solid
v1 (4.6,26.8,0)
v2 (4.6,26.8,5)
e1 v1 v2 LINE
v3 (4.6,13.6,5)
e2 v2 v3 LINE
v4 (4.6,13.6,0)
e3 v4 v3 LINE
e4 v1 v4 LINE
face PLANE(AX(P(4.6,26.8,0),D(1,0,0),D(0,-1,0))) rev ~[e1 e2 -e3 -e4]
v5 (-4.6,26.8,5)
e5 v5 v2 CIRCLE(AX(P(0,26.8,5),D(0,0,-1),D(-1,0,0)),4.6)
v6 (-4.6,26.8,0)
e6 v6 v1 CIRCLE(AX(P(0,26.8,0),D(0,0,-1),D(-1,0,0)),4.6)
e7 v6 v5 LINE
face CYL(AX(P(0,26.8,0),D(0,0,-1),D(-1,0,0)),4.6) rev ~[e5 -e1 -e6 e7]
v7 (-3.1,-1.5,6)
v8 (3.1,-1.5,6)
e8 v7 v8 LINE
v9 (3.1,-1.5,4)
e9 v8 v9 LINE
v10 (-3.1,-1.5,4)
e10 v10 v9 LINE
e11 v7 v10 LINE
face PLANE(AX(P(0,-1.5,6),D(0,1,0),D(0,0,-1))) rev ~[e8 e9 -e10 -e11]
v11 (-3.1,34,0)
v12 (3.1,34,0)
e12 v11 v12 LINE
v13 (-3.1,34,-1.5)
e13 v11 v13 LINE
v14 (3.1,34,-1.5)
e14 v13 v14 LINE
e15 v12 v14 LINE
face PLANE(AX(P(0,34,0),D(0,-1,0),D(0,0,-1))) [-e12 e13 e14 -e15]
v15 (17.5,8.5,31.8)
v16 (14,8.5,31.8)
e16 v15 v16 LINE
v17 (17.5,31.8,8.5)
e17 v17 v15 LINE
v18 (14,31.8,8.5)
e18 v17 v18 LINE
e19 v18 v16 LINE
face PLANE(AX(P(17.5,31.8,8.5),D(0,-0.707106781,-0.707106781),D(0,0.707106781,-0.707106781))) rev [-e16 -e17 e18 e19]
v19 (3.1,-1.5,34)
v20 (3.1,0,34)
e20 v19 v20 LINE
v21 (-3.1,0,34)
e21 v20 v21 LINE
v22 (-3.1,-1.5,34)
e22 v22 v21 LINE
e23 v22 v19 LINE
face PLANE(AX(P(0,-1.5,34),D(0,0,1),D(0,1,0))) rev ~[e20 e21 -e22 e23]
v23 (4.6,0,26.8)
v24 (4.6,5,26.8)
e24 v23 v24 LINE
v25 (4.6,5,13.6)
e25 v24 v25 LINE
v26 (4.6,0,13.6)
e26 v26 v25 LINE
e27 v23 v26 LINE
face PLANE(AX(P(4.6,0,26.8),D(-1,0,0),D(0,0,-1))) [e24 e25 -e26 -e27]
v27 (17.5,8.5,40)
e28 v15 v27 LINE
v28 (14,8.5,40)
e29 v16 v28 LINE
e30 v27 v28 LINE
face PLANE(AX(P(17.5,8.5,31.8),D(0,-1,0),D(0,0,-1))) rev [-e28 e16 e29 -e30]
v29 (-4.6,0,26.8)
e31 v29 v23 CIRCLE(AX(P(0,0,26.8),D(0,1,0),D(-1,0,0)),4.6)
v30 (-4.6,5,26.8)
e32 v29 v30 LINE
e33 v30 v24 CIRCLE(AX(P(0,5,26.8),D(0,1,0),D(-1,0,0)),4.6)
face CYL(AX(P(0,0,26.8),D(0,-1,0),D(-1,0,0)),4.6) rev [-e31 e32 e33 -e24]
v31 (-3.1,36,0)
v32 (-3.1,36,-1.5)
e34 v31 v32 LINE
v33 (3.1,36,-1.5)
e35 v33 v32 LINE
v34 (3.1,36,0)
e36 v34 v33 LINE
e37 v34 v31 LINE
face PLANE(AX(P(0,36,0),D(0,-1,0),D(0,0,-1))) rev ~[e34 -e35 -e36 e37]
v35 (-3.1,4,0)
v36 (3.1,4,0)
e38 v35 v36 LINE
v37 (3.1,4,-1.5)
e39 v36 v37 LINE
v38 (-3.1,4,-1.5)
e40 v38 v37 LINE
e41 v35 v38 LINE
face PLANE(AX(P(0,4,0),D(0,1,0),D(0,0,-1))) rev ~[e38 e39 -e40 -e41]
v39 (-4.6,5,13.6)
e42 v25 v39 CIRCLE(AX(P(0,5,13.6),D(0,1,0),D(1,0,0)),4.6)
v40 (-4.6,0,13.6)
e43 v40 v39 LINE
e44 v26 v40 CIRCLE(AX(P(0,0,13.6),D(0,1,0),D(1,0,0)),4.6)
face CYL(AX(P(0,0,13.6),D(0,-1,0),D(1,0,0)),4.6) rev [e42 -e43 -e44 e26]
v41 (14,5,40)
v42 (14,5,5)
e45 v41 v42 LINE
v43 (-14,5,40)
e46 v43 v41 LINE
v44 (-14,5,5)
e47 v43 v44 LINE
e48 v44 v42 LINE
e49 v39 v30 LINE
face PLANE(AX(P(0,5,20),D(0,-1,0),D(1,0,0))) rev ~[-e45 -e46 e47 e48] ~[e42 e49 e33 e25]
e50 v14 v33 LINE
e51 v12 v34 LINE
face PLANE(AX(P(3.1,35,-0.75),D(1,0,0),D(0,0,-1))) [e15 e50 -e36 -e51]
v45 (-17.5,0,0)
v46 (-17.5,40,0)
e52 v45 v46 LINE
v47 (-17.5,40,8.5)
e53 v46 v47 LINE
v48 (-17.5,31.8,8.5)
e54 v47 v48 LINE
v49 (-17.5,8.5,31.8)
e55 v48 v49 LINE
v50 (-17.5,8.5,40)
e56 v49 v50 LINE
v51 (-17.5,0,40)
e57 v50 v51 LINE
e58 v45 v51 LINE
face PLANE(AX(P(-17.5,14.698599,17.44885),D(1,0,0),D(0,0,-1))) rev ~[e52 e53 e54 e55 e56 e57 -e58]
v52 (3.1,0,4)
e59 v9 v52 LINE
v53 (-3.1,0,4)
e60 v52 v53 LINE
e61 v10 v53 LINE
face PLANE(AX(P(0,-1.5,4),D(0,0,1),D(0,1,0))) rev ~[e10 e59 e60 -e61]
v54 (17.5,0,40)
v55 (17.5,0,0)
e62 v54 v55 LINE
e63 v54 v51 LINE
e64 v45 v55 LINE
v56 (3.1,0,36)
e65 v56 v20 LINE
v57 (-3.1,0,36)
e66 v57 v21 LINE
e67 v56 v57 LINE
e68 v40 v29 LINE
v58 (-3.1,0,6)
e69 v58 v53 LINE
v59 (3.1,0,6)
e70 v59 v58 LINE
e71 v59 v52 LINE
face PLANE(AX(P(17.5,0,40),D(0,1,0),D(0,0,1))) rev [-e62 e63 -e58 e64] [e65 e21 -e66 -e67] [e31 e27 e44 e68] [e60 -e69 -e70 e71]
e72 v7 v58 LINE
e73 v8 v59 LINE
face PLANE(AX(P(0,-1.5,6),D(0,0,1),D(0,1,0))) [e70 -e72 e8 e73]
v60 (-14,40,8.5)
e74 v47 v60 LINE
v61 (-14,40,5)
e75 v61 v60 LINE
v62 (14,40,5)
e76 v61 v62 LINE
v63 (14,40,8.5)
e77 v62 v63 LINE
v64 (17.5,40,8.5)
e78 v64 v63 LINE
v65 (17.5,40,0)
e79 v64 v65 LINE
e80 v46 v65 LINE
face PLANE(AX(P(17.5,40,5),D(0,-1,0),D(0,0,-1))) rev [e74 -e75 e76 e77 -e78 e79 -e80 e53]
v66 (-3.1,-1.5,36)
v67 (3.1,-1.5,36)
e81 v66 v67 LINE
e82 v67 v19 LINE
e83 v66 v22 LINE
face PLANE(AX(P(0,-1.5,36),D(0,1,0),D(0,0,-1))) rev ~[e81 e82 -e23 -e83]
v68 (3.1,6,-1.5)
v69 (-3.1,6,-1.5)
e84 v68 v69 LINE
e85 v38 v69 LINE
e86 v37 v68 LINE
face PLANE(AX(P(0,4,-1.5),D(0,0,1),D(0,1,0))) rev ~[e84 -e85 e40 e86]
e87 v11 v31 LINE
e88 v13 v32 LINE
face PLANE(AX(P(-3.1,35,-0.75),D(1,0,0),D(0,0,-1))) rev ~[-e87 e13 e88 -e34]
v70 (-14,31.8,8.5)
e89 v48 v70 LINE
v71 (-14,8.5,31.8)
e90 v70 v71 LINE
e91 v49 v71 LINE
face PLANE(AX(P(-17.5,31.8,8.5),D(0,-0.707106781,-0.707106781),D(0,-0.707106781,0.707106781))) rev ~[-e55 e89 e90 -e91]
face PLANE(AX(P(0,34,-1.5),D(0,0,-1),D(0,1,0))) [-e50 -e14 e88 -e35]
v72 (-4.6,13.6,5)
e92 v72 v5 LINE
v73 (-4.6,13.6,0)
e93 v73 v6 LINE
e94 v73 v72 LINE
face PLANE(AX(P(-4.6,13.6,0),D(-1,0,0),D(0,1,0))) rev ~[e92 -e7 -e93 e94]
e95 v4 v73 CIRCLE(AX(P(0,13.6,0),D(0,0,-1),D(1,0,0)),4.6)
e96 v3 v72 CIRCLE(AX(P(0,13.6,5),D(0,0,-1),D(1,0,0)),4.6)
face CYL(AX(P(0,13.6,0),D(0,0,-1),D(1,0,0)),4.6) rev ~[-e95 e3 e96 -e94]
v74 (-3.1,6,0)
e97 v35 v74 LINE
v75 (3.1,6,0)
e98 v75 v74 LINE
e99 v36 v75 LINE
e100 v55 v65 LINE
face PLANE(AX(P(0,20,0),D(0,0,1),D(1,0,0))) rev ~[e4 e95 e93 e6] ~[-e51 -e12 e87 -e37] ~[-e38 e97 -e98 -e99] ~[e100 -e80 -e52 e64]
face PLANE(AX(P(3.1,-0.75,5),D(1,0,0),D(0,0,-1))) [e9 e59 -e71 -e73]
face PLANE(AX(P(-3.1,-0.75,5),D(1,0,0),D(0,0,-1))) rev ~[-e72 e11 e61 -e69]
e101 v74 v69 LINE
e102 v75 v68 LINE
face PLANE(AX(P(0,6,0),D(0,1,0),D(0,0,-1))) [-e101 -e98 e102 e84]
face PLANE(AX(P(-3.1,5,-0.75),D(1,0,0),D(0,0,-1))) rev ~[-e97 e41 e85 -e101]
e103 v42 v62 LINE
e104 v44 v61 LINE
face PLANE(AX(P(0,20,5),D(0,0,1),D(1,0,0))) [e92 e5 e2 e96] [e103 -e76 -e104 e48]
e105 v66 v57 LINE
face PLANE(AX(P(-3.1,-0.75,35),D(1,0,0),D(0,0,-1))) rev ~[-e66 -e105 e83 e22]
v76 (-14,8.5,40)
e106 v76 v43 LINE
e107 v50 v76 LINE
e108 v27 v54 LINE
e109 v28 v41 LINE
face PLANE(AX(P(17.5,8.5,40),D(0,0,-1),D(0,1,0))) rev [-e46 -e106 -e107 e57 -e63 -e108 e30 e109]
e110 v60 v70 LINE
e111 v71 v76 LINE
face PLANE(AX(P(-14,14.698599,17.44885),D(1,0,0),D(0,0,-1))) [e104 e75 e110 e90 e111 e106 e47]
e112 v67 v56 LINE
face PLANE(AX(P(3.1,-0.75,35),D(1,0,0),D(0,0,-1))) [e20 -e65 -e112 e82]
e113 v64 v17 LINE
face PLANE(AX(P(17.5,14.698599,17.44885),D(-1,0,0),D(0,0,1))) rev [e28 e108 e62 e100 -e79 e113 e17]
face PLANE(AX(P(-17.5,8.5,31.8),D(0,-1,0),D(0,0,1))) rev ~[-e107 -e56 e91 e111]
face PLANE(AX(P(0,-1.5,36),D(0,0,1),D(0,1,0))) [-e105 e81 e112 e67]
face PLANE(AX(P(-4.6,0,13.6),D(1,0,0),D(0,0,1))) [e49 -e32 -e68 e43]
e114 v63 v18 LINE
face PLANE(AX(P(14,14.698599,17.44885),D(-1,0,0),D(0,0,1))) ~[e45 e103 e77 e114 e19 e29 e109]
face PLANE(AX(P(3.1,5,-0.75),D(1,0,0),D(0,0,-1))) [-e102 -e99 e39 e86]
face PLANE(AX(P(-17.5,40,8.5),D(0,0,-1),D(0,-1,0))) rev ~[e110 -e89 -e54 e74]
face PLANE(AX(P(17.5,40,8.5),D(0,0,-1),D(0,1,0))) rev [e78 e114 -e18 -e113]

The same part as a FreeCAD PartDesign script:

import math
import FreeCAD as App
import Part
import Sketcher
Q = App.Units.Quantity

doc = App.newDocument("Part")
params = doc.addObject("Spreadsheet::Sheet", "Params")
for row, (alias, value) in enumerate([
    ("sketch1_radius", "4.6 mm"),
    ("sketch1_width", "35 mm"),
    ("sketch1_height", "40 mm"),
    ("sketch1_height2", "13.2 mm"),
    ("pad1_length", "5 mm"),
    ("sketch2_width", "40 mm"),
    ("sketch2_height", "35 mm"),
    ("sketch2_width2", "8.5 mm"),
    ("sketch2_width3", "8.2 mm"),
    ("pad2_length", "3.5 mm"),
    ("sketch3_radius", "4.6 mm"),
    ("sketch3_width", "35 mm"),
    ("sketch3_height", "40 mm"),
    ("sketch3_height2", "13.2 mm"),
    ("pad3_length", "5 mm"),
    ("sketch4_width", "2 mm"),
    ("sketch4_width2", "1.5 mm"),
    ("pad4_length", "6.2 mm"),
], start=1):
    params.set(f"A{row}", alias)
    params.set(f"B{row}", "=" + value)
    params.setAlias(f"B{row}", alias)

body = doc.addObject("PartDesign::Body", "Body")

sketch1 = body.newObject("Sketcher::SketchObject", "Sketch")
sketch1.AttachmentSupport = (doc.getObject("XY_Plane"), [""])
sketch1.MapMode = "FlatFace"
sketch1.addGeometry([
    Part.LineSegment(App.Vector(-17.5, 40, 0), App.Vector(-17.5, 0, 0)),
    Part.LineSegment(App.Vector(-17.5, 0, 0), App.Vector(17.5, 0, 0)),
    Part.LineSegment(App.Vector(17.5, 0, 0), App.Vector(17.5, 40, 0)),
    Part.LineSegment(App.Vector(17.5, 40, 0), App.Vector(-17.5, 40, 0)),
    Part.ArcOfCircle(Part.Circle(App.Vector(0, 26.8, 0), App.Vector(0, 0, 1), 4.6), math.radians(0), math.radians(180)),
    Part.LineSegment(App.Vector(4.6, 26.8, 0), App.Vector(4.6, 13.6, 0)),
    Part.ArcOfCircle(Part.Circle(App.Vector(0, 13.6, 0), App.Vector(0, 0, 1), 4.6), math.radians(180), math.radians(360)),
    Part.LineSegment(App.Vector(-4.6, 13.6, 0), App.Vector(-4.6, 26.8, 0)),
], False)
sketch1.addConstraint([
    Sketcher.Constraint("Coincident", 0, 2, 1, 1),
    Sketcher.Constraint("Coincident", 1, 2, 2, 1),
    Sketcher.Constraint("Coincident", 2, 2, 3, 1),
    Sketcher.Constraint("Coincident", 3, 2, 0, 1),
    Sketcher.Constraint("Tangent", 4, 1, 5, 1),
    Sketcher.Constraint("Tangent", 5, 2, 6, 2),
    Sketcher.Constraint("Tangent", 6, 1, 7, 1),
    Sketcher.Constraint("Tangent", 7, 2, 4, 2),
    Sketcher.Constraint("Vertical", 0),
    Sketcher.Constraint("Horizontal", 1),
    Sketcher.Constraint("Vertical", 2),
    Sketcher.Constraint("Horizontal", 3),
    Sketcher.Constraint("Vertical", 5),
    Sketcher.Constraint("Vertical", 7),
    Sketcher.Constraint("Symmetric", 0, 2, 1, 2, -1, 1),
    Sketcher.Constraint("PointOnObject", 4, 3, -2),
    Sketcher.Constraint("Radius", 4, 4.6),
    Sketcher.Constraint("DistanceX", 1, 1, 1, 2, 35.0),
    Sketcher.Constraint("DistanceY", 0, 2, 0, 1, 40.0),
    Sketcher.Constraint("DistanceY", 5, 2, 5, 1, 13.2),
    Sketcher.Constraint("DistanceY", -1, 1, 4, 3, 26.8),
])
sketch1.setExpression("Constraints[16]", "Params.sketch1_radius")
sketch1.setExpression("Constraints[17]", "Params.sketch1_width")
sketch1.setExpression("Constraints[18]", "Params.sketch1_height")
sketch1.setExpression("Constraints[19]", "Params.sketch1_height2")
pad1 = body.newObject("PartDesign::Pad", "Pad")
pad1.Profile = sketch1
pad1.setExpression("Length", "Params.pad1_length")

sketch2 = body.newObject("Sketcher::SketchObject", "Sketch001")
sketch2.AttachmentSupport = (doc.getObject("YZ_Plane"), [""])
sketch2.MapMode = "FlatFace"
sketch2.AttachmentOffset = App.Placement(App.Vector(0, 0, -17.5), App.Rotation())
sketch2.addGeometry([
    Part.LineSegment(App.Vector(40, 8.5, 0), App.Vector(40, 5, 0)),
    Part.LineSegment(App.Vector(40, 5, 0), App.Vector(0, 5, 0)),
    Part.LineSegment(App.Vector(0, 5, 0), App.Vector(0, 40, 0)),
    Part.LineSegment(App.Vector(0, 40, 0), App.Vector(8.5, 40, 0)),
    Part.LineSegment(App.Vector(8.5, 40, 0), App.Vector(8.5, 31.8, 0)),
    Part.LineSegment(App.Vector(8.5, 31.8, 0), App.Vector(31.8, 8.5, 0)),
    Part.LineSegment(App.Vector(31.8, 8.5, 0), App.Vector(40, 8.5, 0)),
], False)
sketch2.addConstraint([
    Sketcher.Constraint("Coincident", 0, 2, 1, 1),
    Sketcher.Constraint("Coincident", 1, 2, 2, 1),
    Sketcher.Constraint("Coincident", 2, 2, 3, 1),
    Sketcher.Constraint("Coincident", 3, 2, 4, 1),
    Sketcher.Constraint("Coincident", 4, 2, 5, 1),
    Sketcher.Constraint("Coincident", 5, 2, 6, 1),
    Sketcher.Constraint("Coincident", 6, 2, 0, 1),
    Sketcher.Constraint("Vertical", 0),
    Sketcher.Constraint("Horizontal", 1),
    Sketcher.Constraint("Vertical", 2),
    Sketcher.Constraint("Horizontal", 3),
    Sketcher.Constraint("Vertical", 4),
    Sketcher.Constraint("Horizontal", 6),
    Sketcher.Constraint("PointOnObject", 1, 2, -2),
    Sketcher.Constraint("Equal", 6, 4),
    Sketcher.Constraint("DistanceX", 1, 2, 1, 1, 40.0),
    Sketcher.Constraint("DistanceY", 2, 1, 2, 2, 35.0),
    Sketcher.Constraint("Angle", 5, Q("-45 deg")),
    Sketcher.Constraint("DistanceX", 3, 1, 3, 2, 8.5),
    Sketcher.Constraint("DistanceX", 6, 1, 6, 2, 8.2),
    Sketcher.Constraint("DistanceY", -1, 1, 0, 2, 5.0),
])
sketch2.setExpression("Constraints[15]", "Params.sketch2_width")
sketch2.setExpression("Constraints[16]", "Params.sketch2_height")
sketch2.setExpression("Constraints[18]", "Params.sketch2_width2")
sketch2.setExpression("Constraints[19]", "Params.sketch2_width3")
pad2 = body.newObject("PartDesign::Pad", "Pad001")
pad2.Profile = sketch2
pad2.setExpression("Length", "Params.pad2_length")
doc.recompute()

mirrored = body.newObject("PartDesign::Mirrored", "Mirrored")
mirrored.Originals = [pad2]
mirrored.MirrorPlane = (doc.getObject("YZ_Plane"), [""])
body.Tip = mirrored

sketch3 = body.newObject("Sketcher::SketchObject", "Sketch002")
sketch3.AttachmentSupport = (doc.getObject("XZ_Plane"), [""])
sketch3.MapMode = "FlatFace"
sketch3.addGeometry([
    Part.LineSegment(App.Vector(-17.5, 40, 0), App.Vector(-17.5, 0, 0)),
    Part.LineSegment(App.Vector(-17.5, 0, 0), App.Vector(17.5, 0, 0)),
    Part.LineSegment(App.Vector(17.5, 0, 0), App.Vector(17.5, 40, 0)),
    Part.LineSegment(App.Vector(17.5, 40, 0), App.Vector(-17.5, 40, 0)),
    Part.ArcOfCircle(Part.Circle(App.Vector(0, 26.8, 0), App.Vector(0, 0, 1), 4.6), math.radians(0), math.radians(180)),
    Part.LineSegment(App.Vector(4.6, 26.8, 0), App.Vector(4.6, 13.6, 0)),
    Part.ArcOfCircle(Part.Circle(App.Vector(0, 13.6, 0), App.Vector(0, 0, 1), 4.6), math.radians(180), math.radians(360)),
    Part.LineSegment(App.Vector(-4.6, 13.6, 0), App.Vector(-4.6, 26.8, 0)),
], False)
sketch3.addConstraint([
    Sketcher.Constraint("Coincident", 0, 2, 1, 1),
    Sketcher.Constraint("Coincident", 1, 2, 2, 1),
    Sketcher.Constraint("Coincident", 2, 2, 3, 1),
    Sketcher.Constraint("Coincident", 3, 2, 0, 1),
    Sketcher.Constraint("Tangent", 4, 1, 5, 1),
    Sketcher.Constraint("Tangent", 5, 2, 6, 2),
    Sketcher.Constraint("Tangent", 6, 1, 7, 1),
    Sketcher.Constraint("Tangent", 7, 2, 4, 2),
    Sketcher.Constraint("Vertical", 0),
    Sketcher.Constraint("Horizontal", 1),
    Sketcher.Constraint("Vertical", 2),
    Sketcher.Constraint("Horizontal", 3),
    Sketcher.Constraint("Vertical", 5),
    Sketcher.Constraint("Vertical", 7),
    Sketcher.Constraint("Symmetric", 0, 2, 1, 2, -1, 1),
    Sketcher.Constraint("PointOnObject", 4, 3, -2),
    Sketcher.Constraint("Radius", 4, 4.6),
    Sketcher.Constraint("DistanceX", 1, 1, 1, 2, 35.0),
    Sketcher.Constraint("DistanceY", 0, 2, 0, 1, 40.0),
    Sketcher.Constraint("DistanceY", 5, 2, 5, 1, 13.2),
    Sketcher.Constraint("DistanceY", -1, 1, 4, 3, 26.8),
])
sketch3.setExpression("Constraints[16]", "Params.sketch3_radius")
sketch3.setExpression("Constraints[17]", "Params.sketch3_width")
sketch3.setExpression("Constraints[18]", "Params.sketch3_height")
sketch3.setExpression("Constraints[19]", "Params.sketch3_height2")
pad3 = body.newObject("PartDesign::Pad", "Pad002")
pad3.Profile = sketch3
pad3.setExpression("Length", "Params.pad3_length")
pad3.Reversed = True

sketch4 = body.newObject("Sketcher::SketchObject", "Sketch003")
sketch4.AttachmentSupport = (doc.getObject("YZ_Plane"), [""])
sketch4.MapMode = "FlatFace"
sketch4.addGeometry([
    Part.LineSegment(App.Vector(0, 36, 0), App.Vector(-1.5, 36, 0)),
    Part.LineSegment(App.Vector(-1.5, 36, 0), App.Vector(-1.5, 34, 0)),
    Part.LineSegment(App.Vector(-1.5, 34, 0), App.Vector(0, 34, 0)),
    Part.LineSegment(App.Vector(0, 34, 0), App.Vector(0, 36, 0)),
    Part.LineSegment(App.Vector(0, 6, 0), App.Vector(-1.5, 6, 0)),
    Part.LineSegment(App.Vector(-1.5, 6, 0), App.Vector(-1.5, 4, 0)),
    Part.LineSegment(App.Vector(-1.5, 4, 0), App.Vector(0, 4, 0)),
    Part.LineSegment(App.Vector(0, 4, 0), App.Vector(0, 6, 0)),
    Part.LineSegment(App.Vector(6, 0, 0), App.Vector(4, 0, 0)),
    Part.LineSegment(App.Vector(4, 0, 0), App.Vector(4, -1.5, 0)),
    Part.LineSegment(App.Vector(4, -1.5, 0), App.Vector(6, -1.5, 0)),
    Part.LineSegment(App.Vector(6, -1.5, 0), App.Vector(6, 0, 0)),
    Part.LineSegment(App.Vector(36, 0, 0), App.Vector(34, 0, 0)),
    Part.LineSegment(App.Vector(34, 0, 0), App.Vector(34, -1.5, 0)),
    Part.LineSegment(App.Vector(34, -1.5, 0), App.Vector(36, -1.5, 0)),
    Part.LineSegment(App.Vector(36, -1.5, 0), App.Vector(36, 0, 0)),
], False)
sketch4.addConstraint([
    Sketcher.Constraint("Coincident", 0, 2, 1, 1),
    Sketcher.Constraint("Coincident", 1, 2, 2, 1),
    Sketcher.Constraint("Coincident", 2, 2, 3, 1),
    Sketcher.Constraint("Coincident", 3, 2, 0, 1),
    Sketcher.Constraint("Coincident", 4, 2, 5, 1),
    Sketcher.Constraint("Coincident", 5, 2, 6, 1),
    Sketcher.Constraint("Coincident", 6, 2, 7, 1),
    Sketcher.Constraint("Coincident", 7, 2, 4, 1),
    Sketcher.Constraint("Coincident", 8, 2, 9, 1),
    Sketcher.Constraint("Coincident", 9, 2, 10, 1),
    Sketcher.Constraint("Coincident", 10, 2, 11, 1),
    Sketcher.Constraint("Coincident", 11, 2, 8, 1),
    Sketcher.Constraint("Coincident", 12, 2, 13, 1),
    Sketcher.Constraint("Coincident", 13, 2, 14, 1),
    Sketcher.Constraint("Coincident", 14, 2, 15, 1),
    Sketcher.Constraint("Coincident", 15, 2, 12, 1),
    Sketcher.Constraint("Horizontal", 0),
    Sketcher.Constraint("Vertical", 1),
    Sketcher.Constraint("Horizontal", 2),
    Sketcher.Constraint("Vertical", 3),
    Sketcher.Constraint("Horizontal", 4),
    Sketcher.Constraint("Vertical", 5),
    Sketcher.Constraint("Horizontal", 6),
    Sketcher.Constraint("Vertical", 7),
    Sketcher.Constraint("Horizontal", 8),
    Sketcher.Constraint("Vertical", 9),
    Sketcher.Constraint("Horizontal", 10),
    Sketcher.Constraint("Vertical", 11),
    Sketcher.Constraint("Horizontal", 12),
    Sketcher.Constraint("Vertical", 13),
    Sketcher.Constraint("Horizontal", 14),
    Sketcher.Constraint("Vertical", 15),
    Sketcher.Constraint("PointOnObject", 2, 2, -2),
    Sketcher.Constraint("PointOnObject", 6, 2, -2),
    Sketcher.Constraint("PointOnObject", 8, 2, -1),
    Sketcher.Constraint("PointOnObject", 12, 2, -1),
    Sketcher.Constraint("Horizontal", 10, 2, 13, 2),
    Sketcher.Constraint("Vertical", 1, 2, 4, 2),
    Sketcher.Constraint("Equal", 10, 12),
    Sketcher.Constraint("Equal", 14, 1),
    Sketcher.Constraint("Equal", 3, 5),
    Sketcher.Constraint("Equal", 6, 9),
    Sketcher.Constraint("DistanceX", 8, 2, 8, 1, 2.0),
    Sketcher.Constraint("DistanceX", 0, 2, 0, 1, 1.5),
    Sketcher.Constraint("DistanceY", -1, 1, 0, 2, 36.0),
    Sketcher.Constraint("DistanceY", -1, 1, 4, 2, 6.0),
    Sketcher.Constraint("DistanceX", -1, 1, 8, 2, 4.0),
    Sketcher.Constraint("DistanceX", -1, 1, 12, 2, 34.0),
])
sketch4.setExpression("Constraints[42]", "Params.sketch4_width")
sketch4.setExpression("Constraints[43]", "Params.sketch4_width2")
pad4 = body.newObject("PartDesign::Pad", "Pad003")
pad4.Profile = sketch4
pad4.setExpression("Length", "Params.pad4_length")
pad4.Midplane = True

doc.recompute()
